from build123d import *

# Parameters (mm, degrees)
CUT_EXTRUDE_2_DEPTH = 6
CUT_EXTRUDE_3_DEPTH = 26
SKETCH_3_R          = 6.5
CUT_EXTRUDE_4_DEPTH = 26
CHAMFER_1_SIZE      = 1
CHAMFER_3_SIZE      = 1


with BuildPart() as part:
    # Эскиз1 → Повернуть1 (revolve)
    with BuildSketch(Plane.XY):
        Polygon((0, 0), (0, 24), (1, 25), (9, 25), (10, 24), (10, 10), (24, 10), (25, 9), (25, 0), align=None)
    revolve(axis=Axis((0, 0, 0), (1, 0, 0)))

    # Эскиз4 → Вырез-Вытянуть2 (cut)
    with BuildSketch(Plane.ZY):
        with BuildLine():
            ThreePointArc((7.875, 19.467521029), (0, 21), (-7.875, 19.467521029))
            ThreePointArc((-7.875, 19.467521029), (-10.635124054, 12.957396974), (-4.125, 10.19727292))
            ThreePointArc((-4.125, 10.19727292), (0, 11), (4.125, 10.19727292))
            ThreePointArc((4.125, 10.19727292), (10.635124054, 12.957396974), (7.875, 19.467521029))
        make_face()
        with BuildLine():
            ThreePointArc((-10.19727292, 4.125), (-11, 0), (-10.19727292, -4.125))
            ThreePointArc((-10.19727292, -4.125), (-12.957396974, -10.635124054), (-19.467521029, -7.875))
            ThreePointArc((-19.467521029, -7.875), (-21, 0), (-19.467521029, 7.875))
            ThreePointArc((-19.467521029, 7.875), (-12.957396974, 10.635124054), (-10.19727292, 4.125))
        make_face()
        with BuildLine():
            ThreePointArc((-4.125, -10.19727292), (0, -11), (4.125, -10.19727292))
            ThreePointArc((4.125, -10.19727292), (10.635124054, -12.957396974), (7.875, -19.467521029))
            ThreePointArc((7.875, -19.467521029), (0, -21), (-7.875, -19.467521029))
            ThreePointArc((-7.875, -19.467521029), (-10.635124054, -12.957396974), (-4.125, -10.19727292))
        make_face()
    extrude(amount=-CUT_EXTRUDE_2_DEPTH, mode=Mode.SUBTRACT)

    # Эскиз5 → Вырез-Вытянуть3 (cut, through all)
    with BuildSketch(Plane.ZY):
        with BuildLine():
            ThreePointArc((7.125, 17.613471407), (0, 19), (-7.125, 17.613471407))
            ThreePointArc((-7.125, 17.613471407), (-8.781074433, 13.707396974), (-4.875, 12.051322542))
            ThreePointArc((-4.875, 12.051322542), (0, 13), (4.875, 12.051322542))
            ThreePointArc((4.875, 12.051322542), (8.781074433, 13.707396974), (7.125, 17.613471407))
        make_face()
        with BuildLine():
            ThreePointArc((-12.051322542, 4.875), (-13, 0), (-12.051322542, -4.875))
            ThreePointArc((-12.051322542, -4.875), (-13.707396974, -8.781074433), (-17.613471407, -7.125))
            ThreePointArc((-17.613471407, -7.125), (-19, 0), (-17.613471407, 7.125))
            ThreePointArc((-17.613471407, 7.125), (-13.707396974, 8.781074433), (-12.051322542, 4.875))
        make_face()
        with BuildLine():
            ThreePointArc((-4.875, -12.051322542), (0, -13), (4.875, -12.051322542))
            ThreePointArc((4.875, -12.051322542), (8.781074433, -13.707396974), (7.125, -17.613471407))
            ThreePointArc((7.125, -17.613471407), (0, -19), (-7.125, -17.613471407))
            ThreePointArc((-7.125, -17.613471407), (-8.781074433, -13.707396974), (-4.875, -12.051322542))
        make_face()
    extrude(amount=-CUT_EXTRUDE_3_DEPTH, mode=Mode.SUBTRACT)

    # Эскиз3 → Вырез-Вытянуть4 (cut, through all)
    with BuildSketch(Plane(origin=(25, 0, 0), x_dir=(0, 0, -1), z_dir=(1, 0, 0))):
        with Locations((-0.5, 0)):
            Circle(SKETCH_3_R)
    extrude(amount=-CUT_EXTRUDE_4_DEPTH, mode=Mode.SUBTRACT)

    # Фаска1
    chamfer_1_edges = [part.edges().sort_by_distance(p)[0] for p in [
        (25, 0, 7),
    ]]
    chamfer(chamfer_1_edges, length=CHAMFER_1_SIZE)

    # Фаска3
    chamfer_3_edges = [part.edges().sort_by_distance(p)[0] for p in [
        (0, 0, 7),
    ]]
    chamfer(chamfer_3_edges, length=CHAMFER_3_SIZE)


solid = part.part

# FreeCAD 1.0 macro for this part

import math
import FreeCAD as App
import Part
import Sketcher
Q = App.Units.Quantity


def edges_at(feature, points):
    """Names of the edges that pass closest to the given points."""
    edges = feature.Shape.Edges
    near = lambda p: min(range(len(edges)), key=lambda i: edges[i].distToShape(Part.Vertex(*p))[0])
    return sorted({f"Edge{near(p) + 1}" for p in points})

doc = App.newDocument("Part")
params = doc.addObject("Spreadsheet::Sheet", "Params")
for row, (alias, value) in enumerate([
    ("sketch1_width", "25 mm"),
    ("sketch1_width2", "14 mm"),
    ("sketch1_width3", "8 mm"),
    ("sketch1_height", "24 mm"),
    ("revolution_angle", "360 deg"),
    ("sketch2_radius", "21 mm"),
    ("sketch2_radius2", "5 mm"),
    ("pocket1_length", "6 mm"),
    ("sketch3_radius", "19 mm"),
    ("sketch3_radius2", "3 mm"),
    ("sketch4_diameter", "13 mm"),
    ("chamfer_size", "1 mm"),
    ("chamfer2_size", "1 mm"),
], start=1):
    params.set(f"A{row}", alias)
    params.set(f"B{row}", "=" + value)
    params.setAlias(f"B{row}", alias)

body = doc.addObject("PartDesign::Body", "Body")

# Sketch on XY plane
sketch1 = body.newObject("Sketcher::SketchObject", "Sketch")
sketch1.AttachmentSupport = (doc.getObject("XY_Plane"), [""])
sketch1.MapMode = "FlatFace"
sketch1.addGeometry([
    Part.LineSegment(App.Vector(0, 24, 0), App.Vector(0, 0, 0)),  # 0
    Part.LineSegment(App.Vector(0, 0, 0), App.Vector(25, 0, 0)),  # 1
    Part.LineSegment(App.Vector(25, 0, 0), App.Vector(25, 9, 0)),  # 2
    Part.LineSegment(App.Vector(25, 9, 0), App.Vector(24, 10, 0)),  # 3
    Part.LineSegment(App.Vector(24, 10, 0), App.Vector(10, 10, 0)),  # 4
    Part.LineSegment(App.Vector(10, 10, 0), App.Vector(10, 24, 0)),  # 5
    Part.LineSegment(App.Vector(10, 24, 0), App.Vector(9, 25, 0)),  # 6
    Part.LineSegment(App.Vector(9, 25, 0), App.Vector(1, 25, 0)),  # 7
    Part.LineSegment(App.Vector(1, 25, 0), App.Vector(0, 24, 0)),  # 8
], False)
sketch1.addConstraint([
    Sketcher.Constraint("Coincident", 0, 2, 1, 1),
    Sketcher.Constraint("Coincident", 1, 2, 2, 1),
    Sketcher.Constraint("Coincident", 2, 2, 3, 1),
    Sketcher.Constraint("Coincident", 3, 2, 4, 1),
    Sketcher.Constraint("Coincident", 4, 2, 5, 1),
    Sketcher.Constraint("Coincident", 5, 2, 6, 1),
    Sketcher.Constraint("Coincident", 6, 2, 7, 1),
    Sketcher.Constraint("Coincident", 7, 2, 8, 1),
    Sketcher.Constraint("Coincident", 8, 2, 0, 1),
    Sketcher.Constraint("Vertical", 0),
    Sketcher.Constraint("Horizontal", 1),
    Sketcher.Constraint("Vertical", 2),
    Sketcher.Constraint("Horizontal", 4),
    Sketcher.Constraint("Vertical", 5),
    Sketcher.Constraint("Horizontal", 7),
    Sketcher.Constraint("Coincident", 0, 2, -1, 1),
    Sketcher.Constraint("Parallel", 3, 6),
    Sketcher.Constraint("Perpendicular", 6, 8),
    Sketcher.Constraint("Horizontal", 5, 2, 8, 2),
    Sketcher.Constraint("Equal", 4, 5),
    Sketcher.Constraint("Equal", 3, 6),
    Sketcher.Constraint("Equal", 6, 8),
    Sketcher.Constraint("DistanceX", 1, 1, 1, 2, Q("25 mm")),
    Sketcher.Constraint("DistanceX", 4, 2, 4, 1, Q("14 mm")),
    Sketcher.Constraint("DistanceX", 7, 2, 7, 1, Q("8 mm")),
    Sketcher.Constraint("DistanceY", 0, 2, 0, 1, Q("24 mm")),
])
sketch1.setExpression("Constraints[22]", "Params.sketch1_width")
sketch1.setExpression("Constraints[23]", "Params.sketch1_width2")
sketch1.setExpression("Constraints[24]", "Params.sketch1_width3")
sketch1.setExpression("Constraints[25]", "Params.sketch1_height")
revolution = body.newObject("PartDesign::Revolution", "Revolution")
revolution.Profile = sketch1
revolution.ReferenceAxis = (sketch1, ["H_Axis"])
revolution.setExpression("Angle", "Params.revolution_angle")

# Sketch on YZ plane
sketch2 = body.newObject("Sketcher::SketchObject", "Sketch001")
sketch2.AttachmentSupport = (doc.getObject("YZ_Plane"), [""])
sketch2.MapMode = "FlatFace"
sketch2.addGeometry([
    Part.ArcOfCircle(Part.Circle(App.Vector(0, 0, 0), App.Vector(0, 0, 1), 21), math.radians(-22.024313), math.radians(22.024313)),  # 0
    Part.ArcOfCircle(Part.Circle(App.Vector(14.832397, -6, 0), App.Vector(0, 0, 1), 5), math.radians(157.975687), math.radians(337.975687)),  # 1
    Part.ArcOfCircle(Part.Circle(App.Vector(0, 0, 0), App.Vector(0, 0, 1), 11), math.radians(-22.024313), math.radians(22.024313)),  # 2
    Part.ArcOfCircle(Part.Circle(App.Vector(14.832397, 6, 0), App.Vector(0, 0, 1), 5), math.radians(22.024313), math.radians(202.024313)),  # 3
    Part.ArcOfCircle(Part.Circle(App.Vector(0, 0, 0), App.Vector(0, 0, 1), 11), math.radians(-112.024313), math.radians(-67.975687)),  # 4
    Part.ArcOfCircle(Part.Circle(App.Vector(6, -14.832397, 0), App.Vector(0, 0, 1), 5), math.radians(-67.975687), math.radians(112.024313)),  # 5
    Part.ArcOfCircle(Part.Circle(App.Vector(0, 0, 0), App.Vector(0, 0, 1), 21), math.radians(-112.024313), math.radians(-67.975687)),  # 6
    Part.ArcOfCircle(Part.Circle(App.Vector(-6, -14.832397, 0), App.Vector(0, 0, 1), 5), math.radians(67.975687), math.radians(247.975687)),  # 7
    Part.ArcOfCircle(Part.Circle(App.Vector(0, 0, 0), App.Vector(0, 0, 1), 11), math.radians(157.975687), math.radians(202.024313)),  # 8
    Part.ArcOfCircle(Part.Circle(App.Vector(-14.832397, -6, 0), App.Vector(0, 0, 1), 5), math.radians(-157.975687), math.radians(22.024313)),  # 9
    Part.ArcOfCircle(Part.Circle(App.Vector(0, 0, 0), App.Vector(0, 0, 1), 21), math.radians(157.975687), math.radians(202.024313)),  # 10
    Part.ArcOfCircle(Part.Circle(App.Vector(-14.832397, 6, 0), App.Vector(0, 0, 1), 5), math.radians(-22.024313), math.radians(157.975687)),  # 11
], False)
sketch2.addConstraint([
    Sketcher.Constraint("Tangent", 0, 1, 1, 2),
    Sketcher.Constraint("Tangent", 1, 1, 2, 1),
    Sketcher.Constraint("Tangent", 2, 2, 3, 2),
    Sketcher.Constraint("Tangent", 3, 1, 0, 2),
    Sketcher.Constraint("Tangent", 4, 2, 5, 2),
    Sketcher.Constraint("Tangent", 5, 1, 6, 2),
    Sketcher.Constraint("Tangent", 6, 1, 7, 2),
    Sketcher.Constraint("Tangent", 7, 1, 4, 1),
    Sketcher.Constraint("Tangent", 8, 2, 9, 2),
    Sketcher.Constraint("Tangent", 9, 1, 10, 2),
    Sketcher.Constraint("Tangent", 10, 1, 11, 2),
    Sketcher.Constraint("Tangent", 11, 1, 8, 1),
    Sketcher.Constraint("Coincident", 0, 3, -1, 1),
    Sketcher.Constraint("Coincident", 2, 3, -1, 1),
    Sketcher.Constraint("Coincident", 4, 3, -1, 1),
    Sketcher.Constraint("Coincident", 6, 3, -1, 1),
    Sketcher.Constraint("Coincident", 8, 3, -1, 1),
    Sketcher.Constraint("Coincident", 10, 3, -1, 1),
    Sketcher.Constraint("Equal", 2, 4),
    Sketcher.Constraint("Equal", 3, 5),
    Sketcher.Constraint("Equal", 4, 8),
    Sketcher.Constraint("Equal", 7, 9),
    Sketcher.Constraint("Horizontal", 5, 3, 7, 3),
    Sketcher.Constraint("Horizontal", 1, 3, 9, 3),
    Sketcher.Constraint("Horizontal", 3, 3, 11, 3),
    Sketcher.Constraint("Vertical", 1, 3, 3, 3),
    Sketcher.Constraint("Radius", 0, Q("21 mm")),
    Sketcher.Constraint("Radius", 1, Q("5 mm")),
    Sketcher.Constraint("DistanceY", 1, 3, -1, 1, Q("6 mm")),
    Sketcher.Constraint("DistanceX", -1, 1, 5, 3, Q("6 mm")),
])
sketch2.setExpression("Constraints[26]", "Params.sketch2_radius")
sketch2.setExpression("Constraints[27]", "Params.sketch2_radius2")
pocket1 = body.newObject("PartDesign::Pocket", "Pocket")
pocket1.Profile = sketch2
pocket1.setExpression("Length", "Params.pocket1_length")
pocket1.Reversed = True

# Sketch on YZ plane
sketch3 = body.newObject("Sketcher::SketchObject", "Sketch002")
sketch3.AttachmentSupport = (doc.getObject("YZ_Plane"), [""])
sketch3.MapMode = "FlatFace"
sketch3.addGeometry([
    Part.ArcOfCircle(Part.Circle(App.Vector(0, 0, 0), App.Vector(0, 0, 1), 19), math.radians(-22.024313), math.radians(22.024313)),  # 0
    Part.ArcOfCircle(Part.Circle(App.Vector(14.832397, -6, 0), App.Vector(0, 0, 1), 3), math.radians(157.975687), math.radians(337.975687)),  # 1
    Part.ArcOfCircle(Part.Circle(App.Vector(0, 0, 0), App.Vector(0, 0, 1), 13), math.radians(-22.024313), math.radians(22.024313)),  # 2
    Part.ArcOfCircle(Part.Circle(App.Vector(14.832397, 6, 0), App.Vector(0, 0, 1), 3), math.radians(22.024313), math.radians(202.024313)),  # 3
    Part.ArcOfCircle(Part.Circle(App.Vector(0, 0, 0), App.Vector(0, 0, 1), 13), math.radians(-112.024313), math.radians(-67.975687)),  # 4
    Part.ArcOfCircle(Part.Circle(App.Vector(6, -14.832397, 0), App.Vector(0, 0, 1), 3), math.radians(-67.975687), math.radians(112.024313)),  # 5
    Part.ArcOfCircle(Part.Circle(App.Vector(0, 0, 0), App.Vector(0, 0, 1), 19), math.radians(-112.024313), math.radians(-67.975687)),  # 6
    Part.ArcOfCircle(Part.Circle(App.Vector(-6, -14.832397, 0), App.Vector(0, 0, 1), 3), math.radians(67.975687), math.radians(247.975687)),  # 7
    Part.ArcOfCircle(Part.Circle(App.Vector(0, 0, 0), App.Vector(0, 0, 1), 13), math.radians(157.975687), math.radians(202.024313)),  # 8
    Part.ArcOfCircle(Part.Circle(App.Vector(-14.832397, -6, 0), App.Vector(0, 0, 1), 3), math.radians(-157.975687), math.radians(22.024313)),  # 9
    Part.ArcOfCircle(Part.Circle(App.Vector(0, 0, 0), App.Vector(0, 0, 1), 19), math.radians(157.975687), math.radians(202.024313)),  # 10
    Part.ArcOfCircle(Part.Circle(App.Vector(-14.832397, 6, 0), App.Vector(0, 0, 1), 3), math.radians(-22.024313), math.radians(157.975687)),  # 11
], False)
sketch3.addConstraint([
    Sketcher.Constraint("Tangent", 0, 1, 1, 2),
    Sketcher.Constraint("Tangent", 1, 1, 2, 1),
    Sketcher.Constraint("Tangent", 2, 2, 3, 2),
    Sketcher.Constraint("Tangent", 3, 1, 0, 2),
    Sketcher.Constraint("Tangent", 4, 2, 5, 2),
    Sketcher.Constraint("Tangent", 5, 1, 6, 2),
    Sketcher.Constraint("Tangent", 6, 1, 7, 2),
    Sketcher.Constraint("Tangent", 7, 1, 4, 1),
    Sketcher.Constraint("Tangent", 8, 2, 9, 2),
    Sketcher.Constraint("Tangent", 9, 1, 10, 2),
    Sketcher.Constraint("Tangent", 10, 1, 11, 2),
    Sketcher.Constraint("Tangent", 11, 1, 8, 1),
    Sketcher.Constraint("Coincident", 0, 3, -1, 1),
    Sketcher.Constraint("Coincident", 2, 3, -1, 1),
    Sketcher.Constraint("Coincident", 4, 3, -1, 1),
    Sketcher.Constraint("Coincident", 6, 3, -1, 1),
    Sketcher.Constraint("Coincident", 8, 3, -1, 1),
    Sketcher.Constraint("Coincident", 10, 3, -1, 1),
    Sketcher.Constraint("Equal", 2, 4),
    Sketcher.Constraint("Equal", 3, 5),
    Sketcher.Constraint("Equal", 4, 8),
    Sketcher.Constraint("Equal", 7, 9),
    Sketcher.Constraint("Horizontal", 5, 3, 7, 3),
    Sketcher.Constraint("Horizontal", 1, 3, 9, 3),
    Sketcher.Constraint("Horizontal", 3, 3, 11, 3),
    Sketcher.Constraint("Vertical", 1, 3, 3, 3),
    Sketcher.Constraint("Radius", 0, Q("19 mm")),
    Sketcher.Constraint("Radius", 1, Q("3 mm")),
    Sketcher.Constraint("DistanceY", 1, 3, -1, 1, Q("6 mm")),
    Sketcher.Constraint("DistanceX", -1, 1, 5, 3, Q("6 mm")),
])
sketch3.setExpression("Constraints[26]", "Params.sketch3_radius")
sketch3.setExpression("Constraints[27]", "Params.sketch3_radius2")
pocket2 = body.newObject("PartDesign::Pocket", "Pocket001")
pocket2.Profile = sketch3
pocket2.Type = "ThroughAll"
pocket2.Reversed = True

# Sketch on YZ plane
sketch4 = body.newObject("Sketcher::SketchObject", "Sketch003")
sketch4.AttachmentSupport = (doc.getObject("YZ_Plane"), [""])
sketch4.MapMode = "FlatFace"
sketch4.AttachmentOffset = App.Placement(App.Vector(0, 0, 25), App.Rotation())
sketch4.addGeometry(Part.Circle(App.Vector(0, 0.5, 0), App.Vector(0, 0, 1), 6.5), False)
sketch4.addConstraint([
    Sketcher.Constraint("PointOnObject", 0, 3, -2),
    Sketcher.Constraint("Diameter", 0, Q("13 mm")),
    Sketcher.Constraint("DistanceY", -1, 1, 0, 3, Q("0.5 mm")),
])
sketch4.setExpression("Constraints[1]", "Params.sketch4_diameter")
pocket3 = body.newObject("PartDesign::Pocket", "Pocket002")
pocket3.Profile = sketch4
pocket3.Type = "ThroughAll"
doc.recompute()

chamfer = body.newObject("PartDesign::Chamfer", "Chamfer")
chamfer.Base = (pocket3, edges_at(pocket3, [(25, 0, 7)]))
chamfer.setExpression("Size", "Params.chamfer_size")
doc.recompute()

chamfer2 = body.newObject("PartDesign::Chamfer", "Chamfer001")
chamfer2.Base = (chamfer, edges_at(chamfer, [(0, 0, 7)]))
chamfer2.setExpression("Size", "Params.chamfer2_size")

doc.recompute()
